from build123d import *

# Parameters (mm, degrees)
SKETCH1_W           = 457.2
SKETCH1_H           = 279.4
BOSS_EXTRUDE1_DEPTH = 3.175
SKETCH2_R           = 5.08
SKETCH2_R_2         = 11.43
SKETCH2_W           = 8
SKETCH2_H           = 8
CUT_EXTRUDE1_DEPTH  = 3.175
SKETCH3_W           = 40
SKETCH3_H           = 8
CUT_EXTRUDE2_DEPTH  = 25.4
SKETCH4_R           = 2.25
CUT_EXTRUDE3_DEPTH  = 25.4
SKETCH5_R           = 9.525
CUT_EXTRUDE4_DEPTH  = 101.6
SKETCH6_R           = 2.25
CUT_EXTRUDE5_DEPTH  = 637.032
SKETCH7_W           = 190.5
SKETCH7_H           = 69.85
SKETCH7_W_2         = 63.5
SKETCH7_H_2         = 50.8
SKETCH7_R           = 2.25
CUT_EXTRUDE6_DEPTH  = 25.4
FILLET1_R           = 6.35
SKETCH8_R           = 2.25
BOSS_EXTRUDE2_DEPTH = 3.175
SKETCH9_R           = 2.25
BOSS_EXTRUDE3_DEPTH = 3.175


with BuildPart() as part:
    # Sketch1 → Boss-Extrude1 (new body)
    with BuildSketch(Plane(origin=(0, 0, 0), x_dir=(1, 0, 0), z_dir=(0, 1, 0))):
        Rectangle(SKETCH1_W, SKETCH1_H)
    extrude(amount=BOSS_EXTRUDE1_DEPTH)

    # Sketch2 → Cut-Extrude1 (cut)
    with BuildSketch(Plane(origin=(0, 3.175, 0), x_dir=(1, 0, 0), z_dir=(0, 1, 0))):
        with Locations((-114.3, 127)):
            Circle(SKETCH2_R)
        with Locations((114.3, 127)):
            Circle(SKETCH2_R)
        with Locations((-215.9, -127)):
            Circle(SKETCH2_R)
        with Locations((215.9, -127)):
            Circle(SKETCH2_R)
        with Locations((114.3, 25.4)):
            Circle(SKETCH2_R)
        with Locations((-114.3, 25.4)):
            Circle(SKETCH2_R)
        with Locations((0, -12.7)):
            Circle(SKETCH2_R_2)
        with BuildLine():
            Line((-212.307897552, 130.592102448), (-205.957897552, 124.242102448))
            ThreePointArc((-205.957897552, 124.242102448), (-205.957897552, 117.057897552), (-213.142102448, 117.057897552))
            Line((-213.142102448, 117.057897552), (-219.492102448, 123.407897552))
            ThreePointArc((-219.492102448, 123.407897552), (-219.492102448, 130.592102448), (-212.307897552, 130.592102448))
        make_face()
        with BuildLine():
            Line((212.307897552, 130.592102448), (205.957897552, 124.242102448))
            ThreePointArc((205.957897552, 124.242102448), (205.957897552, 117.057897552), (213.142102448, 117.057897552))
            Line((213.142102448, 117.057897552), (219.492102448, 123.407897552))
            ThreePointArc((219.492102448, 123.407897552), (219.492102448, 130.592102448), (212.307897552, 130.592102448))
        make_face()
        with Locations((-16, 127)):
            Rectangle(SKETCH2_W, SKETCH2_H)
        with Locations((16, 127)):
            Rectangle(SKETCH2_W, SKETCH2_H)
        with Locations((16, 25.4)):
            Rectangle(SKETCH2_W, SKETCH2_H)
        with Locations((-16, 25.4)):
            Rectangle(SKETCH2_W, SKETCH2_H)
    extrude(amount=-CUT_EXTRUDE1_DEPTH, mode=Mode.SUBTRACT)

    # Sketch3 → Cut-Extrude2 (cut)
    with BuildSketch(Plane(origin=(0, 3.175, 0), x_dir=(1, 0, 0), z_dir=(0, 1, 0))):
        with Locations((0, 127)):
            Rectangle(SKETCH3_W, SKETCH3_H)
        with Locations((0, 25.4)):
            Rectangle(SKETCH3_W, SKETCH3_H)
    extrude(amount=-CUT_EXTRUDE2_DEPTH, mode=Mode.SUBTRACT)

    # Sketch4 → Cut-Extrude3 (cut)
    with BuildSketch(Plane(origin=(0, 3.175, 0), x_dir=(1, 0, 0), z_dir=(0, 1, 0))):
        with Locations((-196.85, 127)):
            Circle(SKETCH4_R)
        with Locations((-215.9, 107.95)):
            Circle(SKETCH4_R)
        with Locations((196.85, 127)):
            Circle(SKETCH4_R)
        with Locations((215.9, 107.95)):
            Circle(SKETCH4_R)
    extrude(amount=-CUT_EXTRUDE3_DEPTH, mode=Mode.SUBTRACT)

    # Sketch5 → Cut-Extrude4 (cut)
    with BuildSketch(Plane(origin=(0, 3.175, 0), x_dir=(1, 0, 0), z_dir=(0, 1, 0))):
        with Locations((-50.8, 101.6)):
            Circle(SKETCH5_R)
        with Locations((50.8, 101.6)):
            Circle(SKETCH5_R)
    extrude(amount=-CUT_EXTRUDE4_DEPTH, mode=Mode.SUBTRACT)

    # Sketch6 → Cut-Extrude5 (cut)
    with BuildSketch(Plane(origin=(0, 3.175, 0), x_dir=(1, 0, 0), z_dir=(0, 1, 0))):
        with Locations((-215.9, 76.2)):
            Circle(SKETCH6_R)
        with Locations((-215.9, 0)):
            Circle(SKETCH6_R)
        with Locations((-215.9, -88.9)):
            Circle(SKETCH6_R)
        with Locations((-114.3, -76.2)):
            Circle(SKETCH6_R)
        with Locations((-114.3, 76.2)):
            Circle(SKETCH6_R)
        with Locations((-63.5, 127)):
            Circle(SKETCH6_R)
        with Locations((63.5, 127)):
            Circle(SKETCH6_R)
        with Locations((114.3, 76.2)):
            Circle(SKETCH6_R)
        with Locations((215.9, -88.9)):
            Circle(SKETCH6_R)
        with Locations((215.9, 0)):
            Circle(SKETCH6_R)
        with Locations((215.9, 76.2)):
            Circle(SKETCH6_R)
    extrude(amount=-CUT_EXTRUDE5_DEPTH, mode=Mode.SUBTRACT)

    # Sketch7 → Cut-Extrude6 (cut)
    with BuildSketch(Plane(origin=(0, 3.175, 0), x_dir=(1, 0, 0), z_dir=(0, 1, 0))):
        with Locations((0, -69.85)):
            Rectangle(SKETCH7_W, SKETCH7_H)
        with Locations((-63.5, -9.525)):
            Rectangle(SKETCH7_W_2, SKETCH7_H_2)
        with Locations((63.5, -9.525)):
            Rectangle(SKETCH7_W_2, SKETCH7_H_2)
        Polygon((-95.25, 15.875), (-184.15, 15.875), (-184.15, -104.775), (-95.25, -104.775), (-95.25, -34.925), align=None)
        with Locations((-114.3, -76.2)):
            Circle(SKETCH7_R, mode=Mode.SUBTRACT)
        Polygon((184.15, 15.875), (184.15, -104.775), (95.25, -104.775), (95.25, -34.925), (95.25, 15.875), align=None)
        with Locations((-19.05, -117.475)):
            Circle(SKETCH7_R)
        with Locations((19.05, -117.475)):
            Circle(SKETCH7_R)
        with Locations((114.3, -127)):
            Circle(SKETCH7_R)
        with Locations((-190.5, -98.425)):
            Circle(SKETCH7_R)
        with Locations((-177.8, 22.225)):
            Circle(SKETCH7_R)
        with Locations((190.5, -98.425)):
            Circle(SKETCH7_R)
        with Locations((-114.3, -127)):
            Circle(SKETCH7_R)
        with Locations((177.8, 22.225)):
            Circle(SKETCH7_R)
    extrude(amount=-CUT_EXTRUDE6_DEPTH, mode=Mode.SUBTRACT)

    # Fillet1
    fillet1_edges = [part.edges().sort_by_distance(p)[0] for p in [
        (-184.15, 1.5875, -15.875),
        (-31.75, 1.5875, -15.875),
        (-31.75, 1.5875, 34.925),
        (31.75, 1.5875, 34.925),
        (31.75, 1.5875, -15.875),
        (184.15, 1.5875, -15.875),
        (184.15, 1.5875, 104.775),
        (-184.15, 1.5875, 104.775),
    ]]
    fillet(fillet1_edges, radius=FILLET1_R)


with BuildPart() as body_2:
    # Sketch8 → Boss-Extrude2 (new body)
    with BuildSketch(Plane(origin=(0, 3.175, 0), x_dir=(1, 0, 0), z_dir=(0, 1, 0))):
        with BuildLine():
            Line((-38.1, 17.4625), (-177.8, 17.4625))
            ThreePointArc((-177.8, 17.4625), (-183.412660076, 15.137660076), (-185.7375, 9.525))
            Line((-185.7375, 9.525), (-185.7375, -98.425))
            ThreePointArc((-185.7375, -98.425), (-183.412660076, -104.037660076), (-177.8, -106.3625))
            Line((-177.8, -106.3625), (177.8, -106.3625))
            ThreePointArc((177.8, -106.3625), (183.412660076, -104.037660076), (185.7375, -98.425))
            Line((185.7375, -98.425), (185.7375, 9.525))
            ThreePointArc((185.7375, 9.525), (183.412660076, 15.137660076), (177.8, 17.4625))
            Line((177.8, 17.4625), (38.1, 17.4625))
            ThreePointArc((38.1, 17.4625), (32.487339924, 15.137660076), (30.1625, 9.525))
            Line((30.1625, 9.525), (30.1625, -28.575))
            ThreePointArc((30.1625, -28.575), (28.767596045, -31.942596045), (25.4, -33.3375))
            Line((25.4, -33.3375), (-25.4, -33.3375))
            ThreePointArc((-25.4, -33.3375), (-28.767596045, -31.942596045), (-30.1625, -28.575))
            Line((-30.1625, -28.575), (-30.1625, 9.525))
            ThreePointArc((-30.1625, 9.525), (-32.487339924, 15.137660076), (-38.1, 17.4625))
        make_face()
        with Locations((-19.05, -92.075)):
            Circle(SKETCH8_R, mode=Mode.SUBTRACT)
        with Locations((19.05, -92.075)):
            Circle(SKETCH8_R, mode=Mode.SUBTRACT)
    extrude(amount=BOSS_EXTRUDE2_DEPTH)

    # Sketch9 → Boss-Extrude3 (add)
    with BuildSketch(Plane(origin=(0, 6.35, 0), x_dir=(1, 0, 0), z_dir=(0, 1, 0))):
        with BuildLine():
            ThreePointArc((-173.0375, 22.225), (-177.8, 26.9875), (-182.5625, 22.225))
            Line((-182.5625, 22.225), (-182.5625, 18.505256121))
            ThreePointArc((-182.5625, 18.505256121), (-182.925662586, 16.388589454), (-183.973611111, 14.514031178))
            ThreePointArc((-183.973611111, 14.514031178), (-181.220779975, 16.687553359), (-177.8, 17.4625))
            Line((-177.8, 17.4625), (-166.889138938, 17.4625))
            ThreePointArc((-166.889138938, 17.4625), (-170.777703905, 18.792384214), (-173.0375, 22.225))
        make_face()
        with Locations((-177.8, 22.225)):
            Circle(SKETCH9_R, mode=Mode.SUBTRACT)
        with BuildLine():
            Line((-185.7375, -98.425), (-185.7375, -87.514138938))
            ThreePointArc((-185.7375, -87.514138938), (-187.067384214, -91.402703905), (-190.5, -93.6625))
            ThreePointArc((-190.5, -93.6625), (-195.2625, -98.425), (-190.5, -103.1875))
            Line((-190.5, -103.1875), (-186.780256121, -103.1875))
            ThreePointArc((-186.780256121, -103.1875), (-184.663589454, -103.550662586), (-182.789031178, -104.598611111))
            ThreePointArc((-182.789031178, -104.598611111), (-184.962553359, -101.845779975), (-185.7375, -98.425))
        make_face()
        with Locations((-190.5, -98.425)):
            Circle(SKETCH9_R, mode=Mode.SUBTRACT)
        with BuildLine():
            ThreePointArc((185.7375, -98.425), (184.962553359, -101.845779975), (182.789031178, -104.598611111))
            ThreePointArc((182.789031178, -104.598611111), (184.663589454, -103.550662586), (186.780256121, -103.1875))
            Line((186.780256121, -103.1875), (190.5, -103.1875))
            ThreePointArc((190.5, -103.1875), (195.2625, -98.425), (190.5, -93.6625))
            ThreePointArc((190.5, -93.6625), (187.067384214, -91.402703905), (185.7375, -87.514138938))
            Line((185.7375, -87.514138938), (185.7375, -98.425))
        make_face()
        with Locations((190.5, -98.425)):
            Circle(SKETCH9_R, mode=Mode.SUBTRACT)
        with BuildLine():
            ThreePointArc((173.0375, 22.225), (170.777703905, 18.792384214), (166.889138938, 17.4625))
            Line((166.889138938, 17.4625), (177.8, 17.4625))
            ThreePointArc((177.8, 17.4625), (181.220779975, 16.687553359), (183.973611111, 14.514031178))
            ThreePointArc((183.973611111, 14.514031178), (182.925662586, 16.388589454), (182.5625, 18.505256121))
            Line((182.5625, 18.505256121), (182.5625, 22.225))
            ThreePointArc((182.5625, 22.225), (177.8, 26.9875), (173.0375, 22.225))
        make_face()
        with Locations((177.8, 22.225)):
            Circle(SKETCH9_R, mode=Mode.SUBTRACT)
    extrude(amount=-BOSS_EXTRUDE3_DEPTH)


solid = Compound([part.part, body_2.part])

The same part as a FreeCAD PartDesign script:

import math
import FreeCAD as App
import Part
import Sketcher
from FreeCAD import Vector
Q = App.Units.Quantity


def edges_at(feature, points):
    """Names of the edges that pass closest to the given points."""
    edges = feature.Shape.Edges
    near = lambda p: min(range(len(edges)), key=lambda i: edges[i].distToShape(Part.Vertex(*p))[0])
    return sorted({f"Edge{near(p) + 1}" for p in points})

doc = App.newDocument("Part")
params = doc.addObject("Spreadsheet::Sheet", "Params")
for row, (alias, value) in enumerate([
    ("sketch1_width", "18 in"),
    ("sketch1_height", "11 in"),
    ("pad1_length", "0.125 in"),
    ("sketch2_diameter", "0.4 in"),
    ("sketch2_diameter2", "0.9 in"),
    ("pocket1_length", "0.125 in"),
    ("pocket2_length", "1 in"),
    ("pocket3_length", "1 in"),
    ("sketch5_diameter", "0.75 in"),
    ("pocket4_length", "4 in"),
    ("pocket5_length", "25.08 in"),
    ("sketch7_width", "6 in"),
    ("sketch7_height", "2 in"),
    ("sketch7_width2", "14.5 in"),
    ("sketch7_height2", "4.75 in"),
    ("pocket6_length", "1 in"),
    ("fillet_radius", "0.25 in"),
    ("sketch8_width", "14 in"),
    ("sketch8_width2", "2 in"),
    ("sketch8_width3", "5.5 in"),
    ("sketch8_height", "1.5 in"),
    ("sketch8_radius", "0.3125 in"),
    ("pad2_length", "0.125 in"),
    ("sketch9_radius", "0.25 in"),
    ("sketch9_radius2", "0.1875 in"),
    ("sketch9_radius3", "0.3125 in"),
    ("pad3_length", "0.125 in"),
], start=1):
    params.set(f"A{row}", alias)
    params.set(f"B{row}", "=" + value)
    params.setAlias(f"B{row}", alias)

body = doc.addObject("PartDesign::Body", "Body")

# Sketch on XZ plane
sketch1 = doc.addObject("Sketcher::SketchObject", "Sketch")
body.addObject(sketch1)
sketch1.AttachmentSupport = (doc.XZ_Plane, [""])
sketch1.MapMode = "FlatFace"
sketch1.addGeometry([
    Part.LineSegment(Vector(-229, -140, 0), Vector(-229, 140, 0)),
    Part.LineSegment(Vector(-229, 140, 0), Vector(229, 140, 0)),
    Part.LineSegment(Vector(229, 140, 0), Vector(229, -140, 0)),
    Part.LineSegment(Vector(229, -140, 0), Vector(-229, -140, 0)),
], False)
sketch1.addConstraint([
    Sketcher.Constraint("Coincident", 0, 2, 1, 1),
    Sketcher.Constraint("Coincident", 1, 2, 2, 1),
    Sketcher.Constraint("Coincident", 2, 2, 3, 1),
    Sketcher.Constraint("Coincident", 3, 2, 0, 1),
    Sketcher.Constraint("Vertical", 0),
    Sketcher.Constraint("Horizontal", 1),
    Sketcher.Constraint("Vertical", 2),
    Sketcher.Constraint("Horizontal", 3),
    Sketcher.Constraint("Symmetric", 0, 2, 2, 2, -1, 1),
    Sketcher.Constraint("DistanceX", 1, 1, 1, 2, Q("18 in")),
    Sketcher.Constraint("DistanceY", 0, 1, 0, 2, Q("11 in")),
])
sketch1.setExpression("Constraints[9]", "Params.sketch1_width")
sketch1.setExpression("Constraints[10]", "Params.sketch1_height")
pad1 = doc.addObject("PartDesign::Pad", "Pad")
body.addObject(pad1)
pad1.Profile = sketch1
pad1.setExpression("Length", "Params.pad1_length")
pad1.Reversed = True

# Sketch on XZ plane
sketch2 = doc.addObject("Sketcher::SketchObject", "Sketch001")
body.addObject(sketch2)
sketch2.AttachmentSupport = (doc.XZ_Plane, [""])
sketch2.MapMode = "FlatFace"
sketch2.AttachmentOffset = App.Placement(Vector(0, 0, -0.125 * 25.4), App.Rotation())
sketch2.addGeometry([
    Part.Circle(Vector(-114, -127, 0), Vector(0, 0, 1), 5),  # 0
    Part.Circle(Vector(114, -127, 0), Vector(0, 0, 1), 5),  # 1
    Part.Circle(Vector(-216, 127, 0), Vector(0, 0, 1), 5),  # 2
    Part.Circle(Vector(216, 127, 0), Vector(0, 0, 1), 5),  # 3
    Part.Circle(Vector(114, -25, 0), Vector(0, 0, 1), 5),  # 4
    Part.Circle(Vector(-114, -25, 0), Vector(0, 0, 1), 5),  # 5
    Part.Circle(Vector(0, 13, 0), Vector(0, 0, 1), 11),  # 6
    Part.LineSegment(Vector(-206, -124, 0), Vector(-212, -131, 0)),  # 7
    Part.ArcOfCircle(Part.Circle(Vector(-216, -127, 0), Vector(0, 0, 1), 5), math.radians(135), math.radians(315)),  # 8
    Part.LineSegment(Vector(-219, -123, 0), Vector(-213, -117, 0)),  # 9
    Part.ArcOfCircle(Part.Circle(Vector(-210, -121, 0), Vector(0, 0, 1), 5), math.radians(-45), math.radians(135)),  # 10
    Part.LineSegment(Vector(212, -131, 0), Vector(206, -124, 0)),  # 11
    Part.ArcOfCircle(Part.Circle(Vector(210, -121, 0), Vector(0, 0, 1), 5), math.radians(45), math.radians(225)),  # 12
    Part.LineSegment(Vector(213, -117, 0), Vector(219, -123, 0)),  # 13
    Part.ArcOfCircle(Part.Circle(Vector(216, -127, 0), Vector(0, 0, 1), 5), math.radians(-135), math.radians(45)),  # 14
    Part.LineSegment(Vector(-20, -131, 0), Vector(-20, -123, 0)),  # 15
    Part.LineSegment(Vector(-20, -123, 0), Vector(-12, -123, 0)),  # 16
    Part.LineSegment(Vector(-12, -123, 0), Vector(-12, -131, 0)),  # 17
    Part.LineSegment(Vector(-12, -131, 0), Vector(-20, -131, 0)),  # 18
    Part.LineSegment(Vector(12, -131, 0), Vector(12, -123, 0)),  # 19
    Part.LineSegment(Vector(12, -123, 0), Vector(20, -123, 0)),  # 20
    Part.LineSegment(Vector(20, -123, 0), Vector(20, -131, 0)),  # 21
    Part.LineSegment(Vector(20, -131, 0), Vector(12, -131, 0)),  # 22
    Part.LineSegment(Vector(12, -29, 0), Vector(12, -21, 0)),  # 23
    Part.LineSegment(Vector(12, -21, 0), Vector(20, -21, 0)),  # 24
    Part.LineSegment(Vector(20, -21, 0), Vector(20, -29, 0)),  # 25
    Part.LineSegment(Vector(20, -29, 0), Vector(12, -29, 0)),  # 26
    Part.LineSegment(Vector(-20, -29, 0), Vector(-20, -21, 0)),  # 27
    Part.LineSegment(Vector(-20, -21, 0), Vector(-12, -21, 0)),  # 28
    Part.LineSegment(Vector(-12, -21, 0), Vector(-12, -29, 0)),  # 29
    Part.LineSegment(Vector(-12, -29, 0), Vector(-20, -29, 0)),  # 30
], False)
sketch2.addConstraint([
    Sketcher.Constraint("Tangent", 7, 2, 8, 2),
    Sketcher.Constraint("Tangent", 8, 1, 9, 1),
    Sketcher.Constraint("Tangent", 9, 2, 10, 2),
    Sketcher.Constraint("Tangent", 10, 1, 7, 1),
    Sketcher.Constraint("Tangent", 11, 2, 12, 2),
    Sketcher.Constraint("Tangent", 12, 1, 13, 1),
    Sketcher.Constraint("Tangent", 13, 2, 14, 2),
    Sketcher.Constraint("Tangent", 14, 1, 11, 1),
    Sketcher.Constraint("Coincident", 15, 2, 16, 1),
    Sketcher.Constraint("Coincident", 16, 2, 17, 1),
    Sketcher.Constraint("Coincident", 17, 2, 18, 1),
    Sketcher.Constraint("Coincident", 18, 2, 15, 1),
    Sketcher.Constraint("Coincident", 19, 2, 20, 1),
    Sketcher.Constraint("Coincident", 20, 2, 21, 1),
    Sketcher.Constraint("Coincident", 21, 2, 22, 1),
    Sketcher.Constraint("Coincident", 22, 2, 19, 1),
    Sketcher.Constraint("Coincident", 23, 2, 24, 1),
    Sketcher.Constraint("Coincident", 24, 2, 25, 1),
    Sketcher.Constraint("Coincident", 25, 2, 26, 1),
    Sketcher.Constraint("Coincident", 26, 2, 23, 1),
    Sketcher.Constraint("Coincident", 27, 2, 28, 1),
    Sketcher.Constraint("Coincident", 28, 2, 29, 1),
    Sketcher.Constraint("Coincident", 29, 2, 30, 1),
    Sketcher.Constraint("Coincident", 30, 2, 27, 1),
    Sketcher.Constraint("Vertical", 15),
    Sketcher.Constraint("Horizontal", 16),
    Sketcher.Constraint("Vertical", 17),
    Sketcher.Constraint("Horizontal", 18),
    Sketcher.Constraint("Vertical", 19),
    Sketcher.Constraint("Horizontal", 20),
    Sketcher.Constraint("Vertical", 21),
    Sketcher.Constraint("Horizontal", 22),
    Sketcher.Constraint("Vertical", 23),
    Sketcher.Constraint("Horizontal", 24),
    Sketcher.Constraint("Vertical", 25),
    Sketcher.Constraint("Horizontal", 26),
    Sketcher.Constraint("Vertical", 27),
    Sketcher.Constraint("Horizontal", 28),
    Sketcher.Constraint("Vertical", 29),
    Sketcher.Constraint("Horizontal", 30),
    Sketcher.Constraint("Equal", 0, 1),
    Sketcher.Constraint("Equal", 1, 2),
    Sketcher.Constraint("Equal", 2, 3),
    Sketcher.Constraint("Equal", 3, 4),
    Sketcher.Constraint("Equal", 4, 5),
    Sketcher.Constraint("Equal", 5, 8),
    Sketcher.Constraint("Equal", 8, 10),
    Sketcher.Constraint("Equal", 10, 12),
    Sketcher.Constraint("Equal", 12, 14),
    Sketcher.Constraint("Symmetric", 3, 3, 8, 3, -1, 1),
    Sketcher.Constraint("Symmetric", 2, 3, 14, 3, -1, 1),
    Sketcher.Constraint("Symmetric", 0, 3, 1, 3, -2),
    Sketcher.Constraint("Symmetric", 2, 3, 3, 3, -2),
    Sketcher.Constraint("Symmetric", 4, 3, 5, 3, -2),
    Sketcher.Constraint("Symmetric", 10, 3, 12, 3, -2),
    Sketcher.Constraint("Symmetric", 16, 2, 19, 2, -2),
    Sketcher.Constraint("Symmetric", 18, 2, 21, 2, -2),
    Sketcher.Constraint("Symmetric", 24, 2, 27, 2, -2),
    Sketcher.Constraint("Symmetric", 26, 2, 29, 2, -2),
    Sketcher.Constraint("PointOnObject", 6, 3, -2),
    Sketcher.Constraint("Perpendicular", 9, 11),
    Sketcher.Constraint("Horizontal", 1, 3, 8, 3),
    Sketcher.Constraint("Vertical", 1, 3, 4, 3),
    Sketcher.Constraint("Vertical", 22, 2, 23, 2),
    Sketcher.Constraint("Vertical", 21, 2, 24, 2),
    Sketcher.Constraint("Equal", 30, 15),
    Sketcher.Constraint("Equal", 21, 23),
    Sketcher.Constraint("Diameter", 0, Q("0.4 in")),
    Sketcher.Constraint("Diameter", 6, Q("0.9 in")),
    Sketcher.Constraint("DistanceY", 0, 3, -1, 1, Q("5 in")),
    Sketcher.Constraint("DistanceY", 4, 3, -1, 1, Q("1 in")),
    Sketcher.Constraint("DistanceX", 0, 3, 1, 3, Q("9 in")),
    Sketcher.Constraint("DistanceX", 2, 3, 0, 3, Q("4 in")),
    Sketcher.Constraint("DistanceY", 19, 2, 23, 2, Q("4 in")),
    Sketcher.Constraint("DistanceY", -1, 1, 6, 3, Q("0.5 in")),
    Sketcher.Constraint("DistanceX", 10, 3, -1, 1, Q("8.25 in")),
    Sketcher.Constraint("DistanceX", 16, 1, 16, 2, 8.0),
    Sketcher.Constraint("DistanceX", 15, 2, -1, 1, 20.0),
    Sketcher.Constraint("DistanceY", 15, 2, -1, 1, 123.0),
])
sketch2.setExpression("Constraints[67]", "Params.sketch2_diameter")
sketch2.setExpression("Constraints[68]", "Params.sketch2_diameter2")
pocket1 = doc.addObject("PartDesign::Pocket", "Pocket")
body.addObject(pocket1)
pocket1.Profile = sketch2
pocket1.setExpression("Length", "Params.pocket1_length")
pocket1.Reversed = True

# Sketch on XZ plane
sketch3 = doc.addObject("Sketcher::SketchObject", "Sketch002")
body.addObject(sketch3)
sketch3.AttachmentSupport = (doc.XZ_Plane, [""])
sketch3.MapMode = "FlatFace"
sketch3.AttachmentOffset = App.Placement(Vector(0, 0, -0.125 * 25.4), App.Rotation())
sketch3.addGeometry([
    Part.LineSegment(Vector(-20, -131, 0), Vector(-20, -123, 0)),  # 0
    Part.LineSegment(Vector(-20, -123, 0), Vector(20, -123, 0)),  # 1
    Part.LineSegment(Vector(20, -123, 0), Vector(20, -131, 0)),  # 2
    Part.LineSegment(Vector(20, -131, 0), Vector(-20, -131, 0)),  # 3
    Part.LineSegment(Vector(-20, -29, 0), Vector(-20, -21, 0)),  # 4
    Part.LineSegment(Vector(-20, -21, 0), Vector(20, -21, 0)),  # 5
    Part.LineSegment(Vector(20, -21, 0), Vector(20, -29, 0)),  # 6
    Part.LineSegment(Vector(20, -29, 0), Vector(-20, -29, 0)),  # 7
], False)
sketch3.addConstraint([
    Sketcher.Constraint("Coincident", 0, 2, 1, 1),
    Sketcher.Constraint("Coincident", 1, 2, 2, 1),
    Sketcher.Constraint("Coincident", 2, 2, 3, 1),
    Sketcher.Constraint("Coincident", 3, 2, 0, 1),
    Sketcher.Constraint("Coincident", 4, 2, 5, 1),
    Sketcher.Constraint("Coincident", 5, 2, 6, 1),
    Sketcher.Constraint("Coincident", 6, 2, 7, 1),
    Sketcher.Constraint("Coincident", 7, 2, 4, 1),
    Sketcher.Constraint("Vertical", 0),
    Sketcher.Constraint("Horizontal", 1),
    Sketcher.Constraint("Vertical", 2),
    Sketcher.Constraint("Horizontal", 3),
    Sketcher.Constraint("Vertical", 4),
    Sketcher.Constraint("Horizontal", 5),
    Sketcher.Constraint("Vertical", 6),
    Sketcher.Constraint("Horizontal", 7),
    Sketcher.Constraint("Vertical", 3, 2, 4, 2),
    Sketcher.Constraint("Vertical", 2, 2, 5, 2),
    Sketcher.Constraint("Equal", 2, 4),
    Sketcher.Constraint("DistanceY", 0, 2, 4, 2, Q("4 in")),
    Sketcher.Constraint("DistanceX", 1, 1, 1, 2, 40.0),
    Sketcher.Constraint("DistanceY", 0, 1, 0, 2, 8.0),
    Sketcher.Constraint("DistanceX", 0, 2, -1, 1, 20.0),
    Sketcher.Constraint("DistanceY", 0, 2, -1, 1, 123.0),
])
pocket2 = doc.addObject("PartDesign::Pocket", "Pocket001")
body.addObject(pocket2)
pocket2.Profile = sketch3
pocket2.setExpression("Length", "Params.pocket2_length")
pocket2.Reversed = True

# Sketch on XZ plane
sketch4 = doc.addObject("Sketcher::SketchObject", "Sketch003")
body.addObject(sketch4)
sketch4.AttachmentSupport = (doc.XZ_Plane, [""])
sketch4.MapMode = "FlatFace"
sketch4.AttachmentOffset = App.Placement(Vector(0, 0, -0.125 * 25.4), App.Rotation())
sketch4.addGeometry([
    Part.Circle(Vector(-196.8, -127, 0), Vector(0, 0, 1), 2.2),
    Part.Circle(Vector(-215.9, -108, 0), Vector(0, 0, 1), 2.2),
    Part.Circle(Vector(196.8, -127, 0), Vector(0, 0, 1), 2.2),
    Part.Circle(Vector(215.9, -108, 0), Vector(0, 0, 1), 2.2),
], False)
sketch4.addConstraint([
    Sketcher.Constraint("Equal", 0, 1),
    Sketcher.Constraint("Equal", 1, 2),
    Sketcher.Constraint("Equal", 2, 3),
    Sketcher.Constraint("Symmetric", 0, 3, 2, 3, -2),
    Sketcher.Constraint("Symmetric", 1, 3, 3, 3, -2),
    Sketcher.Constraint("DistanceY", 0, 3, -1, 1, Q("5 in")),
    Sketcher.Constraint("DistanceX", 1, 3, 3, 3, Q("17 in")),
    Sketcher.Constraint("DistanceX", 0, 3, 2, 3, Q("15.5 in")),
    Sketcher.Constraint("Diameter", 0, 4.5),
    Sketcher.Constraint("DistanceY", 1, 3, -1, 1, Q("4.25 in")),
])
pocket3 = doc.addObject("PartDesign::Pocket", "Pocket002")
body.addObject(pocket3)
pocket3.Profile = sketch4
pocket3.setExpression("Length", "Params.pocket3_length")
pocket3.Reversed = True

# Sketch on XZ plane
sketch5 = doc.addObject("Sketcher::SketchObject", "Sketch004")
body.addObject(sketch5)
sketch5.AttachmentSupport = (doc.XZ_Plane, [""])
sketch5.MapMode = "FlatFace"
sketch5.AttachmentOffset = App.Placement(Vector(0, 0, -0.125 * 25.4), App.Rotation())
sketch5.addGeometry([
    Part.Circle(Vector(-51, -102, 0), Vector(0, 0, 1), 10),
    Part.Circle(Vector(51, -102, 0), Vector(0, 0, 1), 10),
], False)
sketch5.addConstraint([
    Sketcher.Constraint("Equal", 0, 1),
    Sketcher.Constraint("Symmetric", 0, 3, 1, 3, -2),
    Sketcher.Constraint("Diameter", 0, Q("0.75 in")),
    Sketcher.Constraint("DistanceX", 0, 3, -1, 1, Q("2 in")),
    Sketcher.Constraint("DistanceY", 0, 3, -1, 1, Q("4 in")),
])
sketch5.setExpression("Constraints[2]", "Params.sketch5_diameter")
pocket4 = doc.addObject("PartDesign::Pocket", "Pocket003")
body.addObject(pocket4)
pocket4.Profile = sketch5
pocket4.setExpression("Length", "Params.pocket4_length")
pocket4.Reversed = True

# Sketch on XZ plane
sketch6 = doc.addObject("Sketcher::SketchObject", "Sketch005")
body.addObject(sketch6)
sketch6.AttachmentSupport = (doc.XZ_Plane, [""])
sketch6.MapMode = "FlatFace"
sketch6.AttachmentOffset = App.Placement(Vector(0, 0, -0.125 * 25.4), App.Rotation())
sketch6.addGeometry([
    Part.Circle(Vector(-215.9, -76.2, 0), Vector(0, 0, 1), 2.2),  # 0
    Part.Circle(Vector(-215.9, 0, 0), Vector(0, 0, 1), 2.2),  # 1
    Part.Circle(Vector(-215.9, 88.9, 0), Vector(0, 0, 1), 2.2),  # 2
    Part.Circle(Vector(-114.3, 76.2, 0), Vector(0, 0, 1), 2.2),  # 3
    Part.Circle(Vector(-114.3, -76.2, 0), Vector(0, 0, 1), 2.2),  # 4
    Part.Circle(Vector(-63.5, -127, 0), Vector(0, 0, 1), 2.2),  # 5
    Part.Circle(Vector(63.5, -127, 0), Vector(0, 0, 1), 2.2),  # 6
    Part.Circle(Vector(114.3, -76.2, 0), Vector(0, 0, 1), 2.2),  # 7
    Part.Circle(Vector(215.9, 88.9, 0), Vector(0, 0, 1), 2.2),  # 8
    Part.Circle(Vector(215.9, 0, 0), Vector(0, 0, 1), 2.2),  # 9
    Part.Circle(Vector(215.9, -76.2, 0), Vector(0, 0, 1), 2.2),  # 10
], False)
sketch6.addConstraint([
    Sketcher.Constraint("Equal", 0, 1),
    Sketcher.Constraint("Equal", 1, 2),
    Sketcher.Constraint("Equal", 2, 3),
    Sketcher.Constraint("Equal", 3, 4),
    Sketcher.Constraint("Equal", 4, 5),
    Sketcher.Constraint("Equal", 5, 6),
    Sketcher.Constraint("Equal", 6, 7),
    Sketcher.Constraint("Equal", 7, 8),
    Sketcher.Constraint("Equal", 8, 9),
    Sketcher.Constraint("Equal", 9, 10),
    Sketcher.Constraint("Symmetric", 3, 3, 7, 3, -1, 1),
    Sketcher.Constraint("Symmetric", 1, 3, 9, 3, -1, 1),
    Sketcher.Constraint("Symmetric", 5, 3, 6, 3, -2),
    Sketcher.Constraint("Symmetric", 4, 3, 7, 3, -2),
    Sketcher.Constraint("Symmetric", 2, 3, 8, 3, -2),
    Sketcher.Constraint("Symmetric", 0, 3, 10, 3, -2),
    Sketcher.Constraint("PointOnObject", 1, 3, -1),
    Sketcher.Constraint("Horizontal", 0, 3, 4, 3),
    Sketcher.Constraint("Vertical", 0, 3, 1, 3),
    Sketcher.Constraint("Vertical", 1, 3, 2, 3),
    Sketcher.Constraint("DistanceY", 0, 3, -1, 1, Q("3 in")),
    Sketcher.Constraint("DistanceY", 5, 3, -1, 1, Q("5 in")),
    Sketcher.Constraint("DistanceX", 2, 3, 3, 3, Q("4 in")),
    Sketcher.Constraint("DistanceX", 4, 3, 5, 3, Q("2 in")),
    Sketcher.Constraint("DistanceX", 5, 3, 6, 3, Q("5 in")),
    Sketcher.Constraint("DistanceY", -1, 1, 2, 3, Q("3.5 in")),
    Sketcher.Constraint("Diameter", 0, 4.5),
])
pocket5 = doc.addObject("PartDesign::Pocket", "Pocket004")
body.addObject(pocket5)
pocket5.Profile = sketch6
pocket5.setExpression("Length", "Params.pocket5_length")
pocket5.Reversed = True

# Sketch on XZ plane
sketch7 = doc.addObject("Sketcher::SketchObject", "Sketch006")
body.addObject(sketch7)
sketch7.AttachmentSupport = (doc.XZ_Plane, [""])
sketch7.MapMode = "FlatFace"
sketch7.AttachmentOffset = App.Placement(Vector(0, 0, -0.125 * 25.4), App.Rotation())
sketch7.addGeometry([
    Part.LineSegment(Vector(-184.2, 104.8, 0), Vector(184.2, 104.8, 0)),  # 0
    Part.LineSegment(Vector(184.2, 104.8, 0), Vector(184.2, -15.9, 0)),  # 1
    Part.LineSegment(Vector(184.2, -15.9, 0), Vector(31.8, -15.9, 0)),  # 2
    Part.LineSegment(Vector(31.8, -15.9, 0), Vector(31.8, 34.9, 0)),  # 3
    Part.LineSegment(Vector(31.8, 34.9, 0), Vector(-31.8, 34.9, 0)),  # 4
    Part.LineSegment(Vector(-31.8, 34.9, 0), Vector(-31.8, -15.9, 0)),  # 5
    Part.LineSegment(Vector(-31.8, -15.9, 0), Vector(-184.2, -15.9, 0)),  # 6
    Part.LineSegment(Vector(-184.2, -15.9, 0), Vector(-184.2, 104.8, 0)),  # 7
    Part.Circle(Vector(-114.3, 76.2, 0), Vector(0, 0, 1), 2.2),  # 8
    Part.Circle(Vector(-19.1, 117.5, 0), Vector(0, 0, 1), 2.2),  # 9
    Part.Circle(Vector(19.1, 117.5, 0), Vector(0, 0, 1), 2.2),  # 10
    Part.Circle(Vector(114.3, 127, 0), Vector(0, 0, 1), 2.2),  # 11
    Part.Circle(Vector(-190.5, 98.4, 0), Vector(0, 0, 1), 2.2),  # 12
    Part.Circle(Vector(-177.8, -22.2, 0), Vector(0, 0, 1), 2.2),  # 13
    Part.Circle(Vector(190.5, 98.4, 0), Vector(0, 0, 1), 2.2),  # 14
    Part.Circle(Vector(-114.3, 127, 0), Vector(0, 0, 1), 2.2),  # 15
    Part.Circle(Vector(177.8, -22.2, 0), Vector(0, 0, 1), 2.2),  # 16
], False)
sketch7.addConstraint([
    Sketcher.Constraint("Coincident", 0, 2, 1, 1),
    Sketcher.Constraint("Coincident", 1, 2, 2, 1),
    Sketcher.Constraint("Coincident", 2, 2, 3, 1),
    Sketcher.Constraint("Coincident", 3, 2, 4, 1),
    Sketcher.Constraint("Coincident", 4, 2, 5, 1),
    Sketcher.Constraint("Coincident", 5, 2, 6, 1),
    Sketcher.Constraint("Coincident", 6, 2, 7, 1),
    Sketcher.Constraint("Coincident", 7, 2, 0, 1),
    Sketcher.Constraint("Horizontal", 0),
    Sketcher.Constraint("Vertical", 1),
    Sketcher.Constraint("Horizontal", 2),
    Sketcher.Constraint("Vertical", 3),
    Sketcher.Constraint("Horizontal", 4),
    Sketcher.Constraint("Vertical", 5),
    Sketcher.Constraint("Horizontal", 6),
    Sketcher.Constraint("Vertical", 7),
    Sketcher.Constraint("Equal", 8, 9),
    Sketcher.Constraint("Equal", 9, 10),
    Sketcher.Constraint("Equal", 10, 11),
    Sketcher.Constraint("Equal", 11, 12),
    Sketcher.Constraint("Equal", 12, 13),
    Sketcher.Constraint("Equal", 13, 14),
    Sketcher.Constraint("Equal", 14, 15),
    Sketcher.Constraint("Equal", 15, 16),
    Sketcher.Constraint("Symmetric", 9, 3, 10, 3, -2),
    Sketcher.Constraint("Symmetric", 12, 3, 14, 3, -2),
    Sketcher.Constraint("Symmetric", 11, 3, 15, 3, -2),
    Sketcher.Constraint("Symmetric", 13, 3, 16, 3, -2),
    Sketcher.Constraint("Symmetric", 2, 2, 5, 2, -2),
    Sketcher.Constraint("Vertical", 8, 3, 15, 3),
    Sketcher.Constraint("Equal", 2, 6),
    Sketcher.Constraint("DistanceX", 2, 2, 2, 1, Q("6 in")),
    Sketcher.Constraint("DistanceY", 3, 1, 3, 2, Q("2 in")),
    Sketcher.Constraint("DistanceX", 0, 1, 0, 2, Q("14.5 in")),
    Sketcher.Constraint("DistanceY", -1, 1, 8, 3, Q("3 in")),
    Sketcher.Constraint("DistanceY", -1, 1, 11, 3, Q("5 in")),
    Sketcher.Constraint("DistanceX", 13, 3, -1, 1, Q("7 in")),
    Sketcher.Constraint("DistanceX", 8, 3, 11, 3, Q("9 in")),
    Sketcher.Constraint("DistanceX", 12, 3, 8, 3, Q("3 in")),
    Sketcher.Constraint("DistanceY", 16, 3, 0, 2, Q("5 in")),
    Sketcher.Constraint("DistanceX", 9, 3, 0, 2, Q("8 in")),
    Sketcher.Constraint("DistanceY", 1, 2, 1, 1, Q("4.75 in")),
    Sketcher.Constraint("DistanceY", 13, 3, 9, 3, Q("5.5 in")),
    Sketcher.Constraint("DistanceY", 1, 2, 14, 3, Q("4.5 in")),
    Sketcher.Constraint("Diameter", 8, 4.5),
    Sketcher.Constraint("DistanceY", -1, 1, 9, 3, Q("4.625 in")),
])
sketch7.setExpression("Constraints[31]", "Params.sketch7_width")
sketch7.setExpression("Constraints[32]", "Params.sketch7_height")
sketch7.setExpression("Constraints[33]", "Params.sketch7_width2")
sketch7.setExpression("Constraints[41]", "Params.sketch7_height2")
pocket6 = doc.addObject("PartDesign::Pocket", "Pocket005")
body.addObject(pocket6)
pocket6.Profile = sketch7
pocket6.setExpression("Length", "Params.pocket6_length")
pocket6.Reversed = True
doc.recompute()

fillet = doc.addObject("PartDesign::Fillet", "Fillet")
body.addObject(fillet)
fillet.Base = (pocket6, edges_at(pocket6, [
    (-184.15, 1.587, -15.875),
    (-31.75, 1.587, -15.875),
    (-31.75, 1.587, 34.925),
    (31.75, 1.587, 34.925),
    (31.75, 1.587, -15.875),
    (184.15, 1.587, -15.875),
    (184.15, 1.587, 104.775),
    (-184.15, 1.587, 104.775),
]))
fillet.setExpression("Radius", "Params.fillet_radius")
body2 = doc.addObject("PartDesign::Body", "Body001")

# Sketch on XZ plane
sketch8 = doc.addObject("Sketcher::SketchObject", "Sketch007")
body2.addObject(sketch8)
sketch8.AttachmentSupport = (doc.getObject("XZ_Plane001"), [""])
sketch8.MapMode = "FlatFace"
sketch8.AttachmentOffset = App.Placement(Vector(0, 0, -0.125 * 25.4), App.Rotation())
sketch8.addGeometry([
    Part.LineSegment(Vector(-38.1, -17.5, 0), Vector(-177.8, -17.5, 0)),  # 0
    Part.ArcOfCircle(Part.Circle(Vector(-177.8, -9.5, 0), Vector(0, 0, 1), 7.9), math.radians(180), math.radians(270)),  # 1
    Part.LineSegment(Vector(-185.7, -9.5, 0), Vector(-185.7, 98.4, 0)),  # 2
    Part.ArcOfCircle(Part.Circle(Vector(-177.8, 98.4, 0), Vector(0, 0, 1), 7.9), math.radians(90), math.radians(180)),  # 3
    Part.LineSegment(Vector(-177.8, 106.4, 0), Vector(177.8, 106.4, 0)),  # 4
    Part.ArcOfCircle(Part.Circle(Vector(177.8, 98.4, 0), Vector(0, 0, 1), 7.9), math.radians(0), math.radians(90)),  # 5
    Part.LineSegment(Vector(185.7, 98.4, 0), Vector(185.7, -9.5, 0)),  # 6
    Part.ArcOfCircle(Part.Circle(Vector(177.8, -9.5, 0), Vector(0, 0, 1), 7.9), math.radians(-90), math.radians(0)),  # 7
    Part.LineSegment(Vector(177.8, -17.5, 0), Vector(38.1, -17.5, 0)),  # 8
    Part.ArcOfCircle(Part.Circle(Vector(38.1, -9.5, 0), Vector(0, 0, 1), 7.9), math.radians(180), math.radians(270)),  # 9
    Part.LineSegment(Vector(30.2, -9.5, 0), Vector(30.2, 28.6, 0)),  # 10
    Part.ArcOfCircle(Part.Circle(Vector(25.4, 28.6, 0), Vector(0, 0, 1), 4.8), math.radians(0), math.radians(90)),  # 11
    Part.LineSegment(Vector(25.4, 33.3, 0), Vector(-25.4, 33.3, 0)),  # 12
    Part.ArcOfCircle(Part.Circle(Vector(-25.4, 28.6, 0), Vector(0, 0, 1), 4.8), math.radians(90), math.radians(180)),  # 13
    Part.LineSegment(Vector(-30.2, 28.6, 0), Vector(-30.2, -9.5, 0)),  # 14
    Part.ArcOfCircle(Part.Circle(Vector(-38.1, -9.5, 0), Vector(0, 0, 1), 7.9), math.radians(-90), math.radians(0)),  # 15
    Part.Circle(Vector(-19.1, 92.1, 0), Vector(0, 0, 1), 2.2),  # 16
    Part.Circle(Vector(19.1, 92.1, 0), Vector(0, 0, 1), 2.2),  # 17
], False)
sketch8.addConstraint([
    Sketcher.Constraint("Tangent", 0, 2, 1, 2),
    Sketcher.Constraint("Tangent", 1, 1, 2, 1),
    Sketcher.Constraint("Tangent", 2, 2, 3, 2),
    Sketcher.Constraint("Tangent", 3, 1, 4, 1),
    Sketcher.Constraint("Tangent", 4, 2, 5, 2),
    Sketcher.Constraint("Tangent", 5, 1, 6, 1),
    Sketcher.Constraint("Tangent", 6, 2, 7, 2),
    Sketcher.Constraint("Tangent", 7, 1, 8, 1),
    Sketcher.Constraint("Tangent", 8, 2, 9, 2),
    Sketcher.Constraint("Tangent", 9, 1, 10, 1),
    Sketcher.Constraint("Tangent", 10, 2, 11, 1),
    Sketcher.Constraint("Tangent", 11, 2, 12, 1),
    Sketcher.Constraint("Tangent", 12, 2, 13, 1),
    Sketcher.Constraint("Tangent", 13, 2, 14, 1),
    Sketcher.Constraint("Tangent", 14, 2, 15, 2),
    Sketcher.Constraint("Tangent", 15, 1, 0, 1),
    Sketcher.Constraint("Horizontal", 0),
    Sketcher.Constraint("Vertical", 2),
    Sketcher.Constraint("Horizontal", 4),
    Sketcher.Constraint("Vertical", 6),
    Sketcher.Constraint("Horizontal", 8),
    Sketcher.Constraint("Vertical", 10),
    Sketcher.Constraint("Horizontal", 12),
    Sketcher.Constraint("Vertical", 14),
    Sketcher.Constraint("Equal", 1, 3),
    Sketcher.Constraint("Equal", 3, 5),
    Sketcher.Constraint("Equal", 5, 7),
    Sketcher.Constraint("Equal", 7, 9),
    Sketcher.Constraint("Equal", 11, 13),
    Sketcher.Constraint("Equal", 9, 15),
    Sketcher.Constraint("Equal", 16, 17),
    Sketcher.Constraint("Symmetric", 1, 3, 7, 3, -2),
    Sketcher.Constraint("Symmetric", 16, 3, 17, 3, -2),
    Sketcher.Constraint("Equal", 0, 8),
    Sketcher.Constraint("DistanceX", 4, 1, 4, 2, Q("14 in")),
    Sketcher.Constraint("DistanceX", 12, 2, 12, 1, Q("2 in")),
    Sketcher.Constraint("DistanceX", 0, 2, 0, 1, Q("5.5 in")),
    Sketcher.Constraint("DistanceY", 10, 1, 10, 2, Q("1.5 in")),
    Sketcher.Constraint("Radius", 1, Q("0.3125 in")),
    Sketcher.Constraint("DistanceY", 15, 3, 16, 3, Q("4 in")),
    Sketcher.Constraint("DistanceY", 2, 1, 2, 2, Q("4.25 in")),
    Sketcher.Constraint("DistanceX", 16, 3, 17, 3, Q("1.5 in")),
    Sketcher.Constraint("Diameter", 16, 4.5),
    Sketcher.Constraint("DistanceY", 1, 3, -1, 1, Q("0.375 in")),
])
sketch8.setExpression("Constraints[34]", "Params.sketch8_width")
sketch8.setExpression("Constraints[35]", "Params.sketch8_width2")
sketch8.setExpression("Constraints[36]", "Params.sketch8_width3")
sketch8.setExpression("Constraints[37]", "Params.sketch8_height")
sketch8.setExpression("Constraints[38]", "Params.sketch8_radius")
pad2 = doc.addObject("PartDesign::Pad", "Pad001")
body2.addObject(pad2)
pad2.Profile = sketch8
pad2.setExpression("Length", "Params.pad2_length")
pad2.Reversed = True

# Sketch on XZ plane
sketch9 = doc.addObject("Sketcher::SketchObject", "Sketch008")
body2.addObject(sketch9)
sketch9.AttachmentSupport = (doc.getObject("XZ_Plane001"), [""])
sketch9.MapMode = "FlatFace"
sketch9.AttachmentOffset = App.Placement(Vector(0, 0, -0.25 * 25.4), App.Rotation())
sketch9.addGeometry([
    Part.ArcOfCircle(Part.Circle(Vector(-177.8, -22.2, 0), Vector(0, 0, 1), 4.8), math.radians(180), math.radians(360)),  # 0
    Part.LineSegment(Vector(-182.6, -22.2, 0), Vector(-182.6, -18.5, 0)),  # 1
    Part.ArcOfCircle(Part.Circle(Vector(-188.9, -18.5, 0), Vector(0, 0, 1), 6.4), math.radians(0), math.radians(39)),  # 2
    Part.ArcOfCircle(Part.Circle(Vector(-177.8, -9.5, 0), Vector(0, 0, 1), 7.9), math.radians(-141), math.radians(-90)),  # 3
    Part.LineSegment(Vector(-177.8, -17.5, 0), Vector(-166.9, -17.5, 0)),  # 4
    Part.ArcOfCircle(Part.Circle(Vector(-166.9, -23.8, 0), Vector(0, 0, 1), 6.3), math.radians(90), math.radians(166)),  # 5
    Part.Circle(Vector(-177.8, -22.2, 0), Vector(0, 0, 1), 2.2),  # 6
    Part.LineSegment(Vector(-185.7, 98.4, 0), Vector(-185.7, 87.5, 0)),  # 7
    Part.ArcOfCircle(Part.Circle(Vector(-192.1, 87.5, 0), Vector(0, 0, 1), 6.3), math.radians(0), math.radians(76)),  # 8
    Part.ArcOfCircle(Part.Circle(Vector(-190.5, 98.4, 0), Vector(0, 0, 1), 4.8), math.radians(90), math.radians(270)),  # 9
    Part.LineSegment(Vector(-190.5, 103.2, 0), Vector(-186.8, 103.2, 0)),  # 10
    Part.ArcOfCircle(Part.Circle(Vector(-186.8, 109.5, 0), Vector(0, 0, 1), 6.4), math.radians(-90), math.radians(-51)),  # 11
    Part.ArcOfCircle(Part.Circle(Vector(-177.8, 98.4, 0), Vector(0, 0, 1), 7.9), math.radians(129), math.radians(180)),  # 12
    Part.Circle(Vector(-190.5, 98.4, 0), Vector(0, 0, 1), 2.2),  # 13
    Part.ArcOfCircle(Part.Circle(Vector(177.8, 98.4, 0), Vector(0, 0, 1), 7.9), math.radians(0), math.radians(51)),  # 14
    Part.ArcOfCircle(Part.Circle(Vector(186.8, 109.5, 0), Vector(0, 0, 1), 6.4), math.radians(-129), math.radians(-90)),  # 15
    Part.LineSegment(Vector(186.8, 103.2, 0), Vector(190.5, 103.2, 0)),  # 16
    Part.ArcOfCircle(Part.Circle(Vector(190.5, 98.4, 0), Vector(0, 0, 1), 4.8), math.radians(-90), math.radians(90)),  # 17
    Part.ArcOfCircle(Part.Circle(Vector(192.1, 87.5, 0), Vector(0, 0, 1), 6.3), math.radians(104), math.radians(180)),  # 18
    Part.LineSegment(Vector(185.7, 87.5, 0), Vector(185.7, 98.4, 0)),  # 19
    Part.Circle(Vector(190.5, 98.4, 0), Vector(0, 0, 1), 2.2),  # 20
    Part.ArcOfCircle(Part.Circle(Vector(166.9, -23.8, 0), Vector(0, 0, 1), 6.3), math.radians(14), math.radians(90)),  # 21
    Part.LineSegment(Vector(166.9, -17.5, 0), Vector(177.8, -17.5, 0)),  # 22
    Part.ArcOfCircle(Part.Circle(Vector(177.8, -9.5, 0), Vector(0, 0, 1), 7.9), math.radians(-90), math.radians(-39)),  # 23
    Part.ArcOfCircle(Part.Circle(Vector(188.9, -18.5, 0), Vector(0, 0, 1), 6.4), math.radians(141), math.radians(180)),  # 24
    Part.LineSegment(Vector(182.6, -18.5, 0), Vector(182.6, -22.2, 0)),  # 25
    Part.ArcOfCircle(Part.Circle(Vector(177.8, -22.2, 0), Vector(0, 0, 1), 4.8), math.radians(180), math.radians(360)),  # 26
    Part.Circle(Vector(177.8, -22.2, 0), Vector(0, 0, 1), 2.2),  # 27
], False)
sketch9.addConstraint([
    Sketcher.Constraint("Tangent", 0, 1, 1, 1),
    Sketcher.Constraint("Tangent", 1, 2, 2, 1),
    Sketcher.Constraint("Tangent", 2, 2, 3, 1),
    Sketcher.Constraint("Tangent", 3, 2, 4, 1),
    Sketcher.Constraint("Tangent", 4, 2, 5, 1),
    Sketcher.Constraint("Coincident", 5, 2, 0, 2),
    Sketcher.Constraint("Tangent", 7, 2, 8, 1),
    Sketcher.Constraint("Coincident", 8, 2, 9, 2),
    Sketcher.Constraint("Tangent", 9, 1, 10, 1),
    Sketcher.Constraint("Tangent", 10, 2, 11, 1),
    Sketcher.Constraint("Tangent", 11, 2, 12, 1),
    Sketcher.Constraint("Tangent", 12, 2, 7, 1),
    Sketcher.Constraint("Tangent", 14, 2, 15, 1),
    Sketcher.Constraint("Tangent", 15, 2, 16, 1),
    Sketcher.Constraint("Tangent", 16, 2, 17, 2),
    Sketcher.Constraint("Coincident", 17, 1, 18, 1),
    Sketcher.Constraint("Tangent", 18, 2, 19, 1),
    Sketcher.Constraint("Tangent", 19, 2, 14, 1),
    Sketcher.Constraint("Tangent", 21, 2, 22, 1),
    Sketcher.Constraint("Tangent", 22, 2, 23, 1),
    Sketcher.Constraint("Tangent", 23, 2, 24, 1),
    Sketcher.Constraint("Tangent", 24, 2, 25, 1),
    Sketcher.Constraint("Tangent", 25, 2, 26, 2),
    Sketcher.Constraint("Coincident", 26, 1, 21, 1),
    Sketcher.Constraint("Vertical", 1),
    Sketcher.Constraint("Horizontal", 4),
    Sketcher.Constraint("Vertical", 7),
    Sketcher.Constraint("Horizontal", 10),
    Sketcher.Constraint("Horizontal", 16),
    Sketcher.Constraint("Vertical", 19),
    Sketcher.Constraint("Horizontal", 22),
    Sketcher.Constraint("Vertical", 25),
    Sketcher.Constraint("Coincident", 6, 3, 0, 3),
    Sketcher.Constraint("Coincident", 13, 3, 9, 3),
    Sketcher.Constraint("Coincident", 20, 3, 17, 3),
    Sketcher.Constraint("Coincident", 27, 3, 26, 3),
    Sketcher.Constraint("Equal", 2, 5),
    Sketcher.Constraint("Equal", 5, 8),
    Sketcher.Constraint("Equal", 0, 9),
    Sketcher.Constraint("Equal", 8, 11),
    Sketcher.Constraint("Equal", 3, 12),
    Sketcher.Constraint("Equal", 6, 13),
    Sketcher.Constraint("Equal", 12, 14),
    Sketcher.Constraint("Equal", 11, 15),
    Sketcher.Constraint("Equal", 9, 17),
    Sketcher.Constraint("Equal", 15, 18),
    Sketcher.Constraint("Equal", 13, 20),
    Sketcher.Constraint("Equal", 18, 21),
    Sketcher.Constraint("Equal", 14, 23),
    Sketcher.Constraint("Equal", 21, 24),
    Sketcher.Constraint("Equal", 17, 26),
    Sketcher.Constraint("Equal", 20, 27),
    Sketcher.Constraint("Symmetric", 12, 3, 14, 3, -2),
    Sketcher.Constraint("Symmetric", 9, 3, 17, 3, -2),
    Sketcher.Constraint("Symmetric", 5, 3, 21, 3, -2),
    Sketcher.Constraint("Symmetric", 2, 3, 24, 3, -2),
    Sketcher.Constraint("Horizontal", 9, 3, 12, 3),
    Sketcher.Constraint("Horizontal", 8, 3, 18, 3),
    Sketcher.Constraint("Horizontal", 6, 3, 26, 3),
    Sketcher.Constraint("Horizontal", 0, 1, 5, 2),
    Sketcher.Constraint("Vertical", 0, 3, 3, 3),
    Sketcher.Constraint("Vertical", 6, 3, 12, 3),
    Sketcher.Constraint("Vertical", 13, 3, 8, 2),
    Sketcher.Constraint("Equal", 16, 1),
    Sketcher.Constraint("Radius", 2, Q("0.25 in")),
    Sketcher.Constraint("DistanceX", 0, 3, -1, 1, Q("7 in")),
    Sketcher.Constraint("Radius", 0, Q("0.1875 in")),
    Sketcher.Constraint("Radius", 3, Q("0.3125 in")),
    Sketcher.Constraint("DistanceX", 9, 3, -1, 1, Q("7.5 in")),
    Sketcher.Constraint("Diameter", 6, 4.5),
    Sketcher.Constraint("DistanceY", 3, 3, 9, 3, Q("4.25 in")),
    Sketcher.Constraint("DistanceY", 0, 3, -1, 1, Q("0.875 in")),
])
sketch9.setExpression("Constraints[64]", "Params.sketch9_radius")
sketch9.setExpression("Constraints[66]", "Params.sketch9_radius2")
sketch9.setExpression("Constraints[67]", "Params.sketch9_radius3")
pad3 = doc.addObject("PartDesign::Pad", "Pad002")
body2.addObject(pad3)
pad3.Profile = sketch9
pad3.setExpression("Length", "Params.pad3_length")

doc.recompute()
